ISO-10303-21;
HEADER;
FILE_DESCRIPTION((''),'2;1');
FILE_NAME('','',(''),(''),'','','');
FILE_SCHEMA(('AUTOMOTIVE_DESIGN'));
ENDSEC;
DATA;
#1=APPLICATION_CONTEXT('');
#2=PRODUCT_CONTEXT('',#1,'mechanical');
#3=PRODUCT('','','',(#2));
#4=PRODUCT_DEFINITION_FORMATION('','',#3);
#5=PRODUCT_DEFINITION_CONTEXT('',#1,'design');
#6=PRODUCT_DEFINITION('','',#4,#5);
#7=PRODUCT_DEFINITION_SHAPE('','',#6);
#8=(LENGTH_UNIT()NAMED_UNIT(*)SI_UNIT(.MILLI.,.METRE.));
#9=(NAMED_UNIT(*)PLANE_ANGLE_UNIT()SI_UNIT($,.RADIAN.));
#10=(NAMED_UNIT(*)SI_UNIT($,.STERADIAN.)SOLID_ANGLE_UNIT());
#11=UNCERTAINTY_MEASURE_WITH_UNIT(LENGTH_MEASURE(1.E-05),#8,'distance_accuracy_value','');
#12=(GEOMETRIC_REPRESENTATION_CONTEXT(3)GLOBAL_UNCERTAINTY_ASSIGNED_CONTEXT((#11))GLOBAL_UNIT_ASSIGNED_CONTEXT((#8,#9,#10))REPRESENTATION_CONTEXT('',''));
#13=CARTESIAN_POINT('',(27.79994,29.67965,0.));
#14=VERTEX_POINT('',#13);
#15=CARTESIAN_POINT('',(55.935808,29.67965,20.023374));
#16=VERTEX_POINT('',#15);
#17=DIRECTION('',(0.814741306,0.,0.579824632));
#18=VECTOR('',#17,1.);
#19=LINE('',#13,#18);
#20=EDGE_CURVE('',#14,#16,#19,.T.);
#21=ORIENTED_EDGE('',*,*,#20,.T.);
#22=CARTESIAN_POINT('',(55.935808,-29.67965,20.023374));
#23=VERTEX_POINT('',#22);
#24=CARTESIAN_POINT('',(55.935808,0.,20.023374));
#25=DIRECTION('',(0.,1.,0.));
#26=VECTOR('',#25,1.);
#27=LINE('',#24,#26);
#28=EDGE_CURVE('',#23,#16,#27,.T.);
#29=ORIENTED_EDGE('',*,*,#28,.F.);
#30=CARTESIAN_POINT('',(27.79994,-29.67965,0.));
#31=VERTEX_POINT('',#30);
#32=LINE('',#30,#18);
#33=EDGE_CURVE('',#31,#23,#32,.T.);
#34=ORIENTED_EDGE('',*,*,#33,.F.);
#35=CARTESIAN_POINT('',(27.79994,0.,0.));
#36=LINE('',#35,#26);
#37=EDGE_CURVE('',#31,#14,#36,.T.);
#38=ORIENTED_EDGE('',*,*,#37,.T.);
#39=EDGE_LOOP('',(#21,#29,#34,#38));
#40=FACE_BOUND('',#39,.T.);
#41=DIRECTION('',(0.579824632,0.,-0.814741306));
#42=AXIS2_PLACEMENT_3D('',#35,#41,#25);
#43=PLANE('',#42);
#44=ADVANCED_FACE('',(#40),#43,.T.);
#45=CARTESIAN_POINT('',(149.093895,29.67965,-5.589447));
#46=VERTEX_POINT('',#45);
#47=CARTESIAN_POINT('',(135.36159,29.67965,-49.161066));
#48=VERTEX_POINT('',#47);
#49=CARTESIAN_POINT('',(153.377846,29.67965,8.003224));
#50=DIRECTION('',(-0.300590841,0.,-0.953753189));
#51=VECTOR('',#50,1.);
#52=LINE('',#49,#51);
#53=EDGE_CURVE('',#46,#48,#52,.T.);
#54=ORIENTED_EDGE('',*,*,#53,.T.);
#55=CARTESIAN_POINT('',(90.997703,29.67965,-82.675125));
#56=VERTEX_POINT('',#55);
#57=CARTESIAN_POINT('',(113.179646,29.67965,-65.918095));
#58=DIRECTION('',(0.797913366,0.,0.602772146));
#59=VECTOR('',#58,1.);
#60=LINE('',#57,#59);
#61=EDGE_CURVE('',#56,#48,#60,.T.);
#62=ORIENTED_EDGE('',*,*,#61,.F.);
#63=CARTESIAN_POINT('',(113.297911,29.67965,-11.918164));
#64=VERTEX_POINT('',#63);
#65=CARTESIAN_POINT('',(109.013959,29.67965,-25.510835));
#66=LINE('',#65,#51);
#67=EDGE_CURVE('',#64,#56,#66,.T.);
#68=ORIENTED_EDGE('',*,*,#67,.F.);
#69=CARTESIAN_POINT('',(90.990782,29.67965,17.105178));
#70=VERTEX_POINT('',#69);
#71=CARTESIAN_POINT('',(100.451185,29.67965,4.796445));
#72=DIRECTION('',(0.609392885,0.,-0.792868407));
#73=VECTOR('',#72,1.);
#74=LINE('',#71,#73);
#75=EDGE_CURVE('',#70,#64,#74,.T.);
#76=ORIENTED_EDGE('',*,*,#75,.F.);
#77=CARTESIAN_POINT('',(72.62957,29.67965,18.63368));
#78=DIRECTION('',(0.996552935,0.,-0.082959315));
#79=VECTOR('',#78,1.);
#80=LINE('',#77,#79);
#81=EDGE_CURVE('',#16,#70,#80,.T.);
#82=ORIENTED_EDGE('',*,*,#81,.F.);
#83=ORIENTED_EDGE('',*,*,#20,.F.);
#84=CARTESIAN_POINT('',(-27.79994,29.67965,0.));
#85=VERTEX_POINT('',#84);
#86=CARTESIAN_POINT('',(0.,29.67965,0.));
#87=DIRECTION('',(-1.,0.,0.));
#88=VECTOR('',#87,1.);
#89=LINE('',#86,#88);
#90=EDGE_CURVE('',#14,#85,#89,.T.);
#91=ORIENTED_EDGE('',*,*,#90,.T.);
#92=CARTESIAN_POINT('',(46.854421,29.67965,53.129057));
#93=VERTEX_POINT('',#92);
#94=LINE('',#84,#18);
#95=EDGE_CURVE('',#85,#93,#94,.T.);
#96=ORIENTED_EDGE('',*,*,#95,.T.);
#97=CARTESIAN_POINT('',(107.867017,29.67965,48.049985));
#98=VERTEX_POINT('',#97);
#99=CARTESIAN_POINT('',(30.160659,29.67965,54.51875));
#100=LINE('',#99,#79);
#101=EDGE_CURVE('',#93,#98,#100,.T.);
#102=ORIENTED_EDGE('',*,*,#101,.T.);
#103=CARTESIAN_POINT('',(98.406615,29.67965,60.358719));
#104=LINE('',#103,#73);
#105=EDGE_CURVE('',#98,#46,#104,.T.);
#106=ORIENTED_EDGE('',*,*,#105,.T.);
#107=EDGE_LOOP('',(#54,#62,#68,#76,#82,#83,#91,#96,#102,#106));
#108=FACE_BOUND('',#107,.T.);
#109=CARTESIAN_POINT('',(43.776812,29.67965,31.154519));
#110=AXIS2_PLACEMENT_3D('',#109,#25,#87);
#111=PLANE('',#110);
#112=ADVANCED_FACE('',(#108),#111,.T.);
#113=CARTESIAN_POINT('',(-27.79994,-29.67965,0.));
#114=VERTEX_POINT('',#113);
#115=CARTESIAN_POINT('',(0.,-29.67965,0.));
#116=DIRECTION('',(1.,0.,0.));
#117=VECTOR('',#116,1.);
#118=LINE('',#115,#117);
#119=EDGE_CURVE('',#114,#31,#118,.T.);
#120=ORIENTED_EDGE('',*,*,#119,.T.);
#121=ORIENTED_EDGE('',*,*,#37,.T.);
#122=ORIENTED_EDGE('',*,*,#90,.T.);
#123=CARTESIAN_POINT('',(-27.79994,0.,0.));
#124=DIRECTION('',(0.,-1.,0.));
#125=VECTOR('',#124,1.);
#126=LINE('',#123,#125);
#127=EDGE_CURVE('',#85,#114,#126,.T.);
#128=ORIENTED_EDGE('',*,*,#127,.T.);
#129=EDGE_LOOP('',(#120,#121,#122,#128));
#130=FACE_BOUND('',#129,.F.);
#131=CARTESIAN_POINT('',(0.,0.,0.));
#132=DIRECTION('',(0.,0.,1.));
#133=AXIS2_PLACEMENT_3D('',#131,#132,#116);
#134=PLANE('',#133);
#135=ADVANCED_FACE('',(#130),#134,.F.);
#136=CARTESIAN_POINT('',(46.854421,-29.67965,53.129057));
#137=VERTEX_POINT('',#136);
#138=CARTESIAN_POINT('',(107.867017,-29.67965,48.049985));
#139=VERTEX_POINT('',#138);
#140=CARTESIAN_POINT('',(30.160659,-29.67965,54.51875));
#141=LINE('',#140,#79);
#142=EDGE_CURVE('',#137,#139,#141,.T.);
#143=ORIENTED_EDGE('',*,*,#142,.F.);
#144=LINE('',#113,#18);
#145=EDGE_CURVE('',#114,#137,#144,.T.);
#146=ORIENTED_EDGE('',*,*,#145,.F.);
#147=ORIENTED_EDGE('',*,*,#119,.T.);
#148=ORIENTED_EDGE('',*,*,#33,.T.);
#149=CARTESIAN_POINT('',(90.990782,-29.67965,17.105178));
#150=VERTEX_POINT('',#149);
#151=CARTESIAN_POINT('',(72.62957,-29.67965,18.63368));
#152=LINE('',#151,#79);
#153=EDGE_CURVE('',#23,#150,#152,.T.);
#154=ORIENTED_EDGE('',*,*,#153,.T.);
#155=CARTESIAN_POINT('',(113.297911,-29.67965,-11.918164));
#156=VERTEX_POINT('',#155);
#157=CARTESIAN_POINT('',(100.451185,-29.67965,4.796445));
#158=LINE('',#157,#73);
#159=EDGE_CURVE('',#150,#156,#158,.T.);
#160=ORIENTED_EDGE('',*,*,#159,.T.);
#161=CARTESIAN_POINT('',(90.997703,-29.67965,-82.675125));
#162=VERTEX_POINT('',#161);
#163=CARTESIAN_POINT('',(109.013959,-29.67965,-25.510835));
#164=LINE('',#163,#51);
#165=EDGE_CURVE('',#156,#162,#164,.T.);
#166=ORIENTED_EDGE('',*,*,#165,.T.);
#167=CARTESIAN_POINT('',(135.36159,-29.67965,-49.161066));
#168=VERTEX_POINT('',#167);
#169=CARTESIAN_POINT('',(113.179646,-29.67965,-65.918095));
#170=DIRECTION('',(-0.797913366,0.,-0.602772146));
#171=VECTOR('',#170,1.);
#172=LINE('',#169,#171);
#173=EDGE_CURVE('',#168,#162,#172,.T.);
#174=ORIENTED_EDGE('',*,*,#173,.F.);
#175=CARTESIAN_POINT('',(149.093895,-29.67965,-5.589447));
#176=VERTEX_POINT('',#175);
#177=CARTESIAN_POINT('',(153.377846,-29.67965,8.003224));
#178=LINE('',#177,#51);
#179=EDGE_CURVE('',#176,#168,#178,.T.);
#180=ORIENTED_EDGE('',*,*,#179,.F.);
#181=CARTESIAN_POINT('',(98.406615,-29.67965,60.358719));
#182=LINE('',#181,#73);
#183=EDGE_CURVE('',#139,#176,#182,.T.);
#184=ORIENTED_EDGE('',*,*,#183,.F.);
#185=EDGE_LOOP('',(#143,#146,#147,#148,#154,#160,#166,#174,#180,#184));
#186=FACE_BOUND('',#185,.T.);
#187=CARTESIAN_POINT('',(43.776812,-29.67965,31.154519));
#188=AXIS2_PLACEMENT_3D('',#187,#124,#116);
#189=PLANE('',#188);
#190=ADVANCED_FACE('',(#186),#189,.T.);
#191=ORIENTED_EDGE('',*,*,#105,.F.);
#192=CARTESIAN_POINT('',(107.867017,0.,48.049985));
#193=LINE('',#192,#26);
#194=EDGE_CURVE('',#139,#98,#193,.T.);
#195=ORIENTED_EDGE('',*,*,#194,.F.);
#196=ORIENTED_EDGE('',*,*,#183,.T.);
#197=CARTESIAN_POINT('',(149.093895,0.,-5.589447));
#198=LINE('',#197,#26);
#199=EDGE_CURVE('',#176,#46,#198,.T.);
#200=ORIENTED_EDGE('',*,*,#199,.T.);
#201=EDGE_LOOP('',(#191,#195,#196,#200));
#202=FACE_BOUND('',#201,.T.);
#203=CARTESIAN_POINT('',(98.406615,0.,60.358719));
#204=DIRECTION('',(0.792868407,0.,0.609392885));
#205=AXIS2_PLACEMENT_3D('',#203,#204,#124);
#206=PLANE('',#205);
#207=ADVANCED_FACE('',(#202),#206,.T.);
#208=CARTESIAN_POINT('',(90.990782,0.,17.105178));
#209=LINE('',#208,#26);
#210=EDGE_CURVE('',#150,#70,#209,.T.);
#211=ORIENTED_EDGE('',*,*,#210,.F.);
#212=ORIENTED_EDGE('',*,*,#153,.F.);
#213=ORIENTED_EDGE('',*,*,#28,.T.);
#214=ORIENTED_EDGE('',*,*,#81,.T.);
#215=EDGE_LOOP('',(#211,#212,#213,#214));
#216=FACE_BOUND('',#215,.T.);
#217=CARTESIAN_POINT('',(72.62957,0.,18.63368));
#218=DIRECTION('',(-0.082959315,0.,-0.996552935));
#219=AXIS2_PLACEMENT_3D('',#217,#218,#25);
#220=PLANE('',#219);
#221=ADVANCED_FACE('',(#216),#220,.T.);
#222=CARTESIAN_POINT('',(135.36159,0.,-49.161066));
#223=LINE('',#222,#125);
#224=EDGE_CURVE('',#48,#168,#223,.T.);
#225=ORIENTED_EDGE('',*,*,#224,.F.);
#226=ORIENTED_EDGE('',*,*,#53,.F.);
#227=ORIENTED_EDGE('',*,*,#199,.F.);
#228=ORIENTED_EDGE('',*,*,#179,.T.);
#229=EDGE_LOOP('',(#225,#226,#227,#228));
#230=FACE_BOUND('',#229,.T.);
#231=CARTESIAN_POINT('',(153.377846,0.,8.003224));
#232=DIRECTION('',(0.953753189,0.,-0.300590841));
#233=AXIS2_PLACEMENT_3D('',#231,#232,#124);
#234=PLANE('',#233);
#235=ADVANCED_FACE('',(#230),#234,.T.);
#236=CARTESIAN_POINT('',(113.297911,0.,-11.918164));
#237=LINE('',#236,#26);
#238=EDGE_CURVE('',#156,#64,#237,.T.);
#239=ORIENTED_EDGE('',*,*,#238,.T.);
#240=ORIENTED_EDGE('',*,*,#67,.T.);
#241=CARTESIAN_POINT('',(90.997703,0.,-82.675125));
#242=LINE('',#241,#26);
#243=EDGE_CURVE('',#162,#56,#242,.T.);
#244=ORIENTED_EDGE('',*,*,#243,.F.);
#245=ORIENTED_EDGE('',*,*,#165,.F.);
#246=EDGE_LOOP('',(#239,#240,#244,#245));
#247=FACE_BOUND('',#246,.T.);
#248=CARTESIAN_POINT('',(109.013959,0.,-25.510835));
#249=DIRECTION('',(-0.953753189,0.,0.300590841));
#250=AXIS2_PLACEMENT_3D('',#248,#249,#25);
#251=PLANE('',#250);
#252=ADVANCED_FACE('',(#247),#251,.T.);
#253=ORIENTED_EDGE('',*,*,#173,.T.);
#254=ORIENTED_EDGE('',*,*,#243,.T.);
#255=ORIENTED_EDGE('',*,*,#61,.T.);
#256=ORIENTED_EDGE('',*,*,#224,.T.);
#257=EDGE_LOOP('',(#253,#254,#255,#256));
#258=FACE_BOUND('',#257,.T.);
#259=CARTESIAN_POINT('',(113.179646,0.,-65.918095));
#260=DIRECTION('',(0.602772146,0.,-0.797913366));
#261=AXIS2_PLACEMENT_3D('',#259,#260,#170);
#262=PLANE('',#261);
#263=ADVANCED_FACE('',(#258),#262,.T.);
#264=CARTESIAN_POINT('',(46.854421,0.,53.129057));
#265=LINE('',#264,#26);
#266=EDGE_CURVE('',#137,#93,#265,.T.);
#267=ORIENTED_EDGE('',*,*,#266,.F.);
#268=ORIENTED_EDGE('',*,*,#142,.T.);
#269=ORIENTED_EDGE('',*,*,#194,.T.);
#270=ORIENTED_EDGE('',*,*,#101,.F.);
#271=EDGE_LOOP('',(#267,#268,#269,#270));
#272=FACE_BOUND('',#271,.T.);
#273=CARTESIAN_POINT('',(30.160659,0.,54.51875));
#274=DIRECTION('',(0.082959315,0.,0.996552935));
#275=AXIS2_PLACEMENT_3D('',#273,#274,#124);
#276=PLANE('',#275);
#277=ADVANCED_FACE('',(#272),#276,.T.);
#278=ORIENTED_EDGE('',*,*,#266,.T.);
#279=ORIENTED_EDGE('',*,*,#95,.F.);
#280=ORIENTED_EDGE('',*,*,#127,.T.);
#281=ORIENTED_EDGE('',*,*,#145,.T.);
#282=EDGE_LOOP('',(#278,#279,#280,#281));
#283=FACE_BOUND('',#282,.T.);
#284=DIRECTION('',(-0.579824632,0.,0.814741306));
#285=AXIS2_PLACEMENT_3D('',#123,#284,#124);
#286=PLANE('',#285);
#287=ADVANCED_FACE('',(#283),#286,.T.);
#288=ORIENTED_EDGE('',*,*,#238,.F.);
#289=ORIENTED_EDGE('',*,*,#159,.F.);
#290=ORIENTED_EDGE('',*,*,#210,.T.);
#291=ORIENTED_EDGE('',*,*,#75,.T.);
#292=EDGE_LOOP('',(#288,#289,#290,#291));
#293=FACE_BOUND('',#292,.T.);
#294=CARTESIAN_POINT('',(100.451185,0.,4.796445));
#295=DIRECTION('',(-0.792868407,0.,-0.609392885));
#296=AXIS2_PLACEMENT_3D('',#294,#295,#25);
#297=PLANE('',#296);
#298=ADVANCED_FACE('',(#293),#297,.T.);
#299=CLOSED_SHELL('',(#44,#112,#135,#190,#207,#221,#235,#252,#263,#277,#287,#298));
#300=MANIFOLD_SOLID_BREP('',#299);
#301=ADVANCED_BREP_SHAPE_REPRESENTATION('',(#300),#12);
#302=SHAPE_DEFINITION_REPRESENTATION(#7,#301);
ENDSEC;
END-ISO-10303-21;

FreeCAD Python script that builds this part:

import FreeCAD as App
import Part
import Sketcher
from FreeCAD import Vector
Q = App.Units.Quantity


def add_polygon(sketch, points):
    """Adds a closed chain of lines whose ends are joined by coincident constraints."""
    first, n = sketch.GeometryCount, len(points)
    for a, b in zip(points, points[1:] + points[:1]):
        sketch.addGeometry(Part.LineSegment(App.Vector(*a, 0), App.Vector(*b, 0)), False)
    for i in range(n):
        sketch.addConstraint(Sketcher.Constraint("Coincident", first + i, 2, first + (i + 1) % n, 1))

doc = App.newDocument("Part")
body = doc.addObject("PartDesign::Body", "Body")

# Sketch on XY plane
sketch1 = doc.addObject("Sketcher::SketchObject", "Sketch")
body.addObject(sketch1)
sketch1.AttachmentSupport = (doc.XY_Plane, [""])
sketch1.MapMode = "FlatFace"
add_polygon(sketch1, [(-28, 30), (-28, -30), (28, -30), (28, 30)])  # lines 0-3
sketch1.addConstraint([
    Sketcher.Constraint("Vertical", 0),
    Sketcher.Constraint("Horizontal", 1),
    Sketcher.Constraint("Vertical", 2),
    Sketcher.Constraint("Horizontal", 3),
    Sketcher.Constraint("Symmetric", 0, 2, 2, 2, -1, 1),
    Sketcher.Constraint("DistanceY", 0, 2, 0, 1, Q("59.359301 mm")),
    Sketcher.Constraint("DistanceX", 1, 1, 1, 2, Q("55.599879 mm")),
])

# Sketch on XZ plane
sketch2 = doc.addObject("Sketcher::SketchObject", "Sketch001")
body.addObject(sketch2)
sketch2.AttachmentSupport = (doc.XZ_Plane, [""])
sketch2.MapMode = "FlatFace"
sketch2.addGeometry([
    Part.LineSegment(Vector(0, 0, 0), Vector(51, 37, 0)),
    Part.LineSegment(Vector(51, 37, 0), Vector(99, 33, 0)),
    Part.LineSegment(Vector(99, 33, 0), Vector(131, -9, 0)),
    Part.LineSegment(Vector(131, -9, 0), Vector(113, -66, 0)),
], False)
sketch2.addConstraint([
    Sketcher.Constraint("Coincident", 0, 2, 1, 1),
    Sketcher.Constraint("Coincident", 1, 2, 2, 1),
    Sketcher.Constraint("Coincident", 2, 2, 3, 1),
    Sketcher.Constraint("Coincident", 0, 1, -1, 1),
    Sketcher.Constraint("DistanceX", -1, 1, 1, 2, Q("99.4289 mm")),
    Sketcher.Constraint("DistanceY", -1, 1, 1, 2, Q("32.577582 mm")),
    Sketcher.Constraint("DistanceX", 0, 2, 2, 2, Q("79.800788 mm")),
    Sketcher.Constraint("DistanceY", 2, 2, 0, 2, Q("45.330021 mm")),
    Sketcher.Constraint("DistanceY", 3, 2, 2, 2, Q("57.16429 mm")),
    Sketcher.Constraint("DistanceX", 0, 2, 3, 2, Q("61.784532 mm")),
    Sketcher.Constraint("Distance", 0, Q("63.081513 mm")),
    Sketcher.Constraint("Distance", 1, Q("48.199933 mm")),
])
doc.recompute()

additivepipe = doc.addObject("PartDesign::AdditivePipe", "AdditivePipe")
body.addObject(additivepipe)
additivepipe.Profile = sketch1
additivepipe.Spine = (sketch2, ["Edge1", "Edge2", "Edge3", "Edge4"])
additivepipe.Transition = "Right corner"

doc.recompute()
